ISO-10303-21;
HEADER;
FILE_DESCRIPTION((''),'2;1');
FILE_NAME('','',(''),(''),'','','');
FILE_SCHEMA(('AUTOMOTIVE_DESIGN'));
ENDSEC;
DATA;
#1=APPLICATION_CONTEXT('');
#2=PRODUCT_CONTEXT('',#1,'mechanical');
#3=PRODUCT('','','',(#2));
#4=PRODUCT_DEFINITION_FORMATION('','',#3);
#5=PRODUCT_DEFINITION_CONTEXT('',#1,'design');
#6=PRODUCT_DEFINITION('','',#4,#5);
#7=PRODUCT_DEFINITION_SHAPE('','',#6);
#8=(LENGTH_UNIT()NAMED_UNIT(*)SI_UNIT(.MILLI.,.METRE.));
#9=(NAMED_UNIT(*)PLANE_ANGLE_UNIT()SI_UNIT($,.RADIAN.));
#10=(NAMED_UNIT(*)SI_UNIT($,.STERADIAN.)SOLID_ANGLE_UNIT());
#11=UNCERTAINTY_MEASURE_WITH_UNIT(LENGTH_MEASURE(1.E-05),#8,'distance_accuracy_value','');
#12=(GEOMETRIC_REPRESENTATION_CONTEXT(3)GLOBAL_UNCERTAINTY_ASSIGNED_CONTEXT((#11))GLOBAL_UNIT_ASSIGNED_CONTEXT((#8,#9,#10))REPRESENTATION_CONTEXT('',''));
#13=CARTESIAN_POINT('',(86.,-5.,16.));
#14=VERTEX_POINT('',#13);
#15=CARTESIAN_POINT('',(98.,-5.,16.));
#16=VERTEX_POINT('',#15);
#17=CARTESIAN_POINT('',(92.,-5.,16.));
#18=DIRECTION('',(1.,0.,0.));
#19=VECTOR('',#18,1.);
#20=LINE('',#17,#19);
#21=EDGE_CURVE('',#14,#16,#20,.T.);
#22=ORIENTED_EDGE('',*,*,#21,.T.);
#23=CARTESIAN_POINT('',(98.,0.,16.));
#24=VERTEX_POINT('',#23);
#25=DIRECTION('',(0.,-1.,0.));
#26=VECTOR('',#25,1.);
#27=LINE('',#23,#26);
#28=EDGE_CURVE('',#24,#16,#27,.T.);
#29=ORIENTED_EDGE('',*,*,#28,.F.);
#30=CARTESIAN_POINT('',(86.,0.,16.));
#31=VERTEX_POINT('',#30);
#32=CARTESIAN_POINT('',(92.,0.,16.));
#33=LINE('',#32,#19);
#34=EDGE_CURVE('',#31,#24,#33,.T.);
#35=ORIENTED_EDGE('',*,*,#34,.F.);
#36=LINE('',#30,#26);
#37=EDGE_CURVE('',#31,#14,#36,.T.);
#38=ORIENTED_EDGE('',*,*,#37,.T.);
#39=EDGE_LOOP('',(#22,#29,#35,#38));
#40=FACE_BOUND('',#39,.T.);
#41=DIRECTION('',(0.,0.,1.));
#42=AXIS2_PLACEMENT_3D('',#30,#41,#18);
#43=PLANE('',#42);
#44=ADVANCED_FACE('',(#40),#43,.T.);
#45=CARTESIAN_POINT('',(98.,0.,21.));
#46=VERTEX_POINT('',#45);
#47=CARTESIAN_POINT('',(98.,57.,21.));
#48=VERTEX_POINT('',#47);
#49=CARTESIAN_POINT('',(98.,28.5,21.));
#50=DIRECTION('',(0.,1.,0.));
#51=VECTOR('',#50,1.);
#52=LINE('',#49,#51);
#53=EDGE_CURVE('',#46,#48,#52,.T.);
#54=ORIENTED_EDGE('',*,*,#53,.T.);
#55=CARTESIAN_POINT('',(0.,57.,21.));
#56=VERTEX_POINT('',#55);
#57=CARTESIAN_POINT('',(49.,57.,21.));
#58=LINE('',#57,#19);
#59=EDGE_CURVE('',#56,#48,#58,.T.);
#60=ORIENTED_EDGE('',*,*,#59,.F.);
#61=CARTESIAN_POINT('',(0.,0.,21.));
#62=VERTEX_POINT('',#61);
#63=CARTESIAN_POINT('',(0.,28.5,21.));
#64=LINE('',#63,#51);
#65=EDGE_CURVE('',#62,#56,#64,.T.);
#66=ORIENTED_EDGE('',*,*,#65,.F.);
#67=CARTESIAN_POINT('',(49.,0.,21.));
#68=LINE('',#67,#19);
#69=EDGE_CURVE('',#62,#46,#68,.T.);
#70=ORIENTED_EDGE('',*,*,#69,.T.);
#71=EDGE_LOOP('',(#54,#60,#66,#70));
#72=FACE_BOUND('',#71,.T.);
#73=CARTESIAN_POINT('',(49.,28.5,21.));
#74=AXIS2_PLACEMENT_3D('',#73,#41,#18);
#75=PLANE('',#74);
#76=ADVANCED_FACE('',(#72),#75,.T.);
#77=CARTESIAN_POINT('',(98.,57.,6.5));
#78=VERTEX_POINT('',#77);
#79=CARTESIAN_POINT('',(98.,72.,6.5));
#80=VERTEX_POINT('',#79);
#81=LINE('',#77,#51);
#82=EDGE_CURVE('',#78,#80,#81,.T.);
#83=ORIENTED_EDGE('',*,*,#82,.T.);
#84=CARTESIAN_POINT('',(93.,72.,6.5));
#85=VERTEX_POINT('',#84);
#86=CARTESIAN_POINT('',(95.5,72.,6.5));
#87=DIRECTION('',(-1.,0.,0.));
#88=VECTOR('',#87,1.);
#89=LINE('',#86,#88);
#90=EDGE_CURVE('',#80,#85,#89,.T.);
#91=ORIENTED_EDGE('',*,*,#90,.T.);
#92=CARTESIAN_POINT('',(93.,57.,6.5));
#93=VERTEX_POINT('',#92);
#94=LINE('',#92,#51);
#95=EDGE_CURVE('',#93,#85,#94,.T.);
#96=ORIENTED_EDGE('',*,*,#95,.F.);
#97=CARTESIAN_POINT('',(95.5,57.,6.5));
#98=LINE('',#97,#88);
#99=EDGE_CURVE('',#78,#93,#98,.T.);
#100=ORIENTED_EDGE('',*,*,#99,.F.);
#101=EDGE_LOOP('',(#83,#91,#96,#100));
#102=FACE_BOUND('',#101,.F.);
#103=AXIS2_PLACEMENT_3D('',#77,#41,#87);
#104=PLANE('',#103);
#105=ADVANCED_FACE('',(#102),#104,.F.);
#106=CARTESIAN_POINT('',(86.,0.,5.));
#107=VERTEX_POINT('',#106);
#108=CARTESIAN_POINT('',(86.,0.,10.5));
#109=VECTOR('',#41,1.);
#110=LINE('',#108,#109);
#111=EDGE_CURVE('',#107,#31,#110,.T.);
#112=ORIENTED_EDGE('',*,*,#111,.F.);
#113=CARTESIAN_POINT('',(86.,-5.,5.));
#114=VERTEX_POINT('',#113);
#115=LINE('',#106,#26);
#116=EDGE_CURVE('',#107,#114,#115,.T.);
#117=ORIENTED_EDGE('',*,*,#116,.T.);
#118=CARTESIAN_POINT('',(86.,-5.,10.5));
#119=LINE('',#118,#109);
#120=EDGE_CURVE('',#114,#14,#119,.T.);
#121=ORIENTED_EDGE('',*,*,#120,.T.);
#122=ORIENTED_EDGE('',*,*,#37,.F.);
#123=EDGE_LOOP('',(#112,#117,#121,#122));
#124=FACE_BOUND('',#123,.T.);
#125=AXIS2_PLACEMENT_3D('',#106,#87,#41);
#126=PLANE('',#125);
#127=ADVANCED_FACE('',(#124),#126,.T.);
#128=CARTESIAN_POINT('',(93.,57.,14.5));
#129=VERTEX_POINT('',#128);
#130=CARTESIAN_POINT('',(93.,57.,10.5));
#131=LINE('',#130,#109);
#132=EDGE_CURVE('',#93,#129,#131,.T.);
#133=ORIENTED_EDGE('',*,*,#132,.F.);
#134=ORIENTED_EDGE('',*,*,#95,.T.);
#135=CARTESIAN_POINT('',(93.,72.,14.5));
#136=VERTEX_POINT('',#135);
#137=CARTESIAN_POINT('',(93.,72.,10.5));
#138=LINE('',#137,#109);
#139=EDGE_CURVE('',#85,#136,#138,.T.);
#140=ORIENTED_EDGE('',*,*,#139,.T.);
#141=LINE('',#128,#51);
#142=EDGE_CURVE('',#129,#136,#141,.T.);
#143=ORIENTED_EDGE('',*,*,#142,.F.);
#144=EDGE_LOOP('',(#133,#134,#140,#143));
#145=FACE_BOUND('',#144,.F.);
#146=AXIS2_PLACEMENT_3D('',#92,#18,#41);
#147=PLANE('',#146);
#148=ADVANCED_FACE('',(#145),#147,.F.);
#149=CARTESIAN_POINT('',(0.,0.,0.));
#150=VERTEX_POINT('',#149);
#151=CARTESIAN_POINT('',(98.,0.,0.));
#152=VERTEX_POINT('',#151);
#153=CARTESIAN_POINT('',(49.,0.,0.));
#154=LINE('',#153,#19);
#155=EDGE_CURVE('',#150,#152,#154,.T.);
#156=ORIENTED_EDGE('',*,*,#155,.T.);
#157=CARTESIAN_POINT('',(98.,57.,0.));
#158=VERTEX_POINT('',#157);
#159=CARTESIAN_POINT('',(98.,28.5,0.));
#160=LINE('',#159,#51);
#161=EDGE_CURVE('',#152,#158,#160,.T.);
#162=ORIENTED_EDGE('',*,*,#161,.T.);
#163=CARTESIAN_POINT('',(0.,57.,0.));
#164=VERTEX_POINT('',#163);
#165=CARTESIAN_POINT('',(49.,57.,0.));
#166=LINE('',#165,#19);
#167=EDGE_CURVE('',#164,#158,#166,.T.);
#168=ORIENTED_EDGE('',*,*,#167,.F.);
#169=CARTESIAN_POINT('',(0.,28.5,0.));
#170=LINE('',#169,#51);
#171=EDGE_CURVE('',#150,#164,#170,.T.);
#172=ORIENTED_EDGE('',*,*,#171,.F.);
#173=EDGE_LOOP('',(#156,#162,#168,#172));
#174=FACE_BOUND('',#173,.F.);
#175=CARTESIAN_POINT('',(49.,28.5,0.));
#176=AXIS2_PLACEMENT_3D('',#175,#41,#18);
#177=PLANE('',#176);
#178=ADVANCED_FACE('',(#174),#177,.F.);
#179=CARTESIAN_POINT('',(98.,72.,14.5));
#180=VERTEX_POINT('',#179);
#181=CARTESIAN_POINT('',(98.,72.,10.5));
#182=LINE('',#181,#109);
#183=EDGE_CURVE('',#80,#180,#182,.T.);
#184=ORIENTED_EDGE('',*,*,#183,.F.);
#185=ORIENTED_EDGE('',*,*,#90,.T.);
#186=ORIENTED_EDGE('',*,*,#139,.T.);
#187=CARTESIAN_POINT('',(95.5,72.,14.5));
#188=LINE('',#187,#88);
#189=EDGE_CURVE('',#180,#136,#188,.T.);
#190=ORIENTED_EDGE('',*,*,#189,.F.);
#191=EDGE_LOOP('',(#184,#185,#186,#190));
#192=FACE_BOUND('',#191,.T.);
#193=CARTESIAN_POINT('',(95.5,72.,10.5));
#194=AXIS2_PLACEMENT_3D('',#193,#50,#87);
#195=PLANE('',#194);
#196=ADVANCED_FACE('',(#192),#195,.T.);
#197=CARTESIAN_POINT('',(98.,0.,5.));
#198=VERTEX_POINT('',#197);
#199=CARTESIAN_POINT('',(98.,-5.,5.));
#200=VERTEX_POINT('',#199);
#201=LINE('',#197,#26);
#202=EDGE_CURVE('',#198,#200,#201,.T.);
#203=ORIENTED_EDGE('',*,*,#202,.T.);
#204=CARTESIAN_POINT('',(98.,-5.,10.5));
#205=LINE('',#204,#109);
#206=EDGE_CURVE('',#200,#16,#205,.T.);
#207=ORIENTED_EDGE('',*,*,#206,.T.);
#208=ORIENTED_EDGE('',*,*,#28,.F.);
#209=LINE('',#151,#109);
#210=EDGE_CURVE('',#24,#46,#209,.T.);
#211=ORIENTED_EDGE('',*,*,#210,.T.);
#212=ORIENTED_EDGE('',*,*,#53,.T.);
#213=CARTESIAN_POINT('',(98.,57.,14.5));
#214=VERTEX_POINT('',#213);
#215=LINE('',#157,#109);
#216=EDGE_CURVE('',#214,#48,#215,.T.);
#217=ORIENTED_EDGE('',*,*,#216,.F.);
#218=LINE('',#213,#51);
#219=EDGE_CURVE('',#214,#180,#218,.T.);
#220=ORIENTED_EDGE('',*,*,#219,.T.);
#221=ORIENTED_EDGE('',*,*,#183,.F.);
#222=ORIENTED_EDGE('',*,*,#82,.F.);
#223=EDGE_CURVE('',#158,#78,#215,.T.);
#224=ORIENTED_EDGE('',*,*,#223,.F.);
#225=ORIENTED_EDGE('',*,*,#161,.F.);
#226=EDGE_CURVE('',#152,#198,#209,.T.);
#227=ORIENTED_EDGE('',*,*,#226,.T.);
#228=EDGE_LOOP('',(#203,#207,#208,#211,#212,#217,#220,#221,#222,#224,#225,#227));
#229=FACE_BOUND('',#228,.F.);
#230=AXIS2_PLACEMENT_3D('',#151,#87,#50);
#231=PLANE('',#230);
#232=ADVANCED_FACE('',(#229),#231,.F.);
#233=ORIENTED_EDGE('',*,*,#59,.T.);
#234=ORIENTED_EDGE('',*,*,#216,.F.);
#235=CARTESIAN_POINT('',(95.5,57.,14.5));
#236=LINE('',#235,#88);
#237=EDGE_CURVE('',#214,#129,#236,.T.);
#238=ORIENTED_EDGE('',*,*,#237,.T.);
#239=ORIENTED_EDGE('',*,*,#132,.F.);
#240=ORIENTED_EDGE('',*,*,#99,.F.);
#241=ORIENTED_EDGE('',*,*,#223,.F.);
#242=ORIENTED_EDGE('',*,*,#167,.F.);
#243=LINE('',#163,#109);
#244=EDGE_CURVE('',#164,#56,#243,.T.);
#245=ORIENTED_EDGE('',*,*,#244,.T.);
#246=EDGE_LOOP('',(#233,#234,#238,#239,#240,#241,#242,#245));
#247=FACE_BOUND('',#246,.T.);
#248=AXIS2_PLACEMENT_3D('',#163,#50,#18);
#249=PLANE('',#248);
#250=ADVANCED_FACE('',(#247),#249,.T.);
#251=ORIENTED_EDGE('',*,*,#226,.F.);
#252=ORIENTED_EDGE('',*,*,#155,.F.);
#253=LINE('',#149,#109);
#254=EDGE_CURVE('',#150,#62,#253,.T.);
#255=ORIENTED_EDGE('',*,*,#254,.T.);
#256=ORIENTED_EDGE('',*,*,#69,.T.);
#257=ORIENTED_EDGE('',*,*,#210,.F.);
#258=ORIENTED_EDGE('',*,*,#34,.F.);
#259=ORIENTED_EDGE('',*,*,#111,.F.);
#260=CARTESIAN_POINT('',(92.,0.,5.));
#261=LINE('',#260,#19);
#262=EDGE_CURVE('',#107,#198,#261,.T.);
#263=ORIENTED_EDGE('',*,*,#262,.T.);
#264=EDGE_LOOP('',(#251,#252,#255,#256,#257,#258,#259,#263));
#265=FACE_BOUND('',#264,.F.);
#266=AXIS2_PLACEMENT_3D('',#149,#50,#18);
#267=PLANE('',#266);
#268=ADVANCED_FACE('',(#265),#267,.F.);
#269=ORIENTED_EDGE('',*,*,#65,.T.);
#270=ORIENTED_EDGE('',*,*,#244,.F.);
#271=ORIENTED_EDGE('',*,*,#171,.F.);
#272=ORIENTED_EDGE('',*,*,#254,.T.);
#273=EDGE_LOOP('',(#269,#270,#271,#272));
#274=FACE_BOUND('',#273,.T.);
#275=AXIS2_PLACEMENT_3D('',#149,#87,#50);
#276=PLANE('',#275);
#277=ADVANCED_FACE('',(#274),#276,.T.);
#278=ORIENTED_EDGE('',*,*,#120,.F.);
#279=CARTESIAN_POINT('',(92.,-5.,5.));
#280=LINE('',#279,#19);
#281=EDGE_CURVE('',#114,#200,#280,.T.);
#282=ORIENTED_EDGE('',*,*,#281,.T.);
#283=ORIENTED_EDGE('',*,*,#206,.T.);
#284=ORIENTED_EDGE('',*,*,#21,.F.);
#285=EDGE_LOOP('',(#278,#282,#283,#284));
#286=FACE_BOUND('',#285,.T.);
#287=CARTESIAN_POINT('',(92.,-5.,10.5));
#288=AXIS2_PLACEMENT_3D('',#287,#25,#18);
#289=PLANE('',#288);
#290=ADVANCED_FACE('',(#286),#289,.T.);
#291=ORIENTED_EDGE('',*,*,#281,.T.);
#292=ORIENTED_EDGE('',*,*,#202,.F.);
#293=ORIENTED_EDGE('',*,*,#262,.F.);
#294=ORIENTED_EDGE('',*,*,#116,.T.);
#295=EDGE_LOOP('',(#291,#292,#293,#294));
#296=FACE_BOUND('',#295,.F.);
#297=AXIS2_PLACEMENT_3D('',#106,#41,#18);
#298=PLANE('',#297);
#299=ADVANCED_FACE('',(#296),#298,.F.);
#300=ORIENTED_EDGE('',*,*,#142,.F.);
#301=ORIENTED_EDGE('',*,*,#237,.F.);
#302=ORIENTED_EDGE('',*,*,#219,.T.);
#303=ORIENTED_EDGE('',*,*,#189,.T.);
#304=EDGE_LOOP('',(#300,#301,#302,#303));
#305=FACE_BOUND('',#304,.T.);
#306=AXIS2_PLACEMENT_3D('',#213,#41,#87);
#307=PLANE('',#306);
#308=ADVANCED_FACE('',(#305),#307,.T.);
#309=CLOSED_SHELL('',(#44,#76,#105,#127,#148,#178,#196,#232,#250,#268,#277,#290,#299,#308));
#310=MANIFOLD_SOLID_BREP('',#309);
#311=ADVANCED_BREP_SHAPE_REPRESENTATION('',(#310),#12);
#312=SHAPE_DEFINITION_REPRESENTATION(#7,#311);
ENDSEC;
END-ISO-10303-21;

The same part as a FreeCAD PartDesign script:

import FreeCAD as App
import Part
import Sketcher


def add_polygon(sketch, points):
    """Adds a closed chain of lines whose ends are joined by coincident constraints."""
    first, n = sketch.GeometryCount, len(points)
    for a, b in zip(points, points[1:] + points[:1]):
        sketch.addGeometry(Part.LineSegment(App.Vector(*a, 0), App.Vector(*b, 0)), False)
    for i in range(n):
        sketch.addConstraint(Sketcher.Constraint("Coincident", first + i, 2, first + (i + 1) % n, 1))

doc = App.newDocument("Part")
body = doc.addObject("PartDesign::Body", "Body")

sketch1 = doc.addObject("Sketcher::SketchObject", "Sketch")
body.addObject(sketch1)
sketch1.AttachmentSupport = (doc.XY_Plane, [""])
sketch1.MapMode = "FlatFace"
add_polygon(sketch1, [(0, 57), (0, 0), (98, 0), (98, 57)])
sketch1.addConstraint(Sketcher.Constraint("Vertical", 0))
sketch1.addConstraint(Sketcher.Constraint("Horizontal", 1))
sketch1.addConstraint(Sketcher.Constraint("Vertical", 2))
sketch1.addConstraint(Sketcher.Constraint("Horizontal", 3))
sketch1.addConstraint(Sketcher.Constraint("Coincident", 0, 2, -1, 1))
sketch1.addConstraint(Sketcher.Constraint("DistanceX", 1, 1, 1, 2, 98.0))
sketch1.addConstraint(Sketcher.Constraint("DistanceY", 0, 2, 0, 1, 57.0))
pad1 = doc.addObject("PartDesign::Pad", "Pad")
body.addObject(pad1)
pad1.Profile = sketch1
pad1.Length = 21

sketch2 = doc.addObject("Sketcher::SketchObject", "Sketch001")
body.addObject(sketch2)
sketch2.AttachmentSupport = (doc.XZ_Plane, [""])
sketch2.MapMode = "FlatFace"
sketch2.AttachmentOffset = App.Placement(App.Vector(0, 0, -57), App.Rotation())
add_polygon(sketch2, [(98, 14), (98, 6), (93, 6), (93, 14)])
sketch2.addConstraint(Sketcher.Constraint("Vertical", 0))
sketch2.addConstraint(Sketcher.Constraint("Horizontal", 1))
sketch2.addConstraint(Sketcher.Constraint("Vertical", 2))
sketch2.addConstraint(Sketcher.Constraint("Horizontal", 3))
sketch2.addConstraint(Sketcher.Constraint("DistanceX", 1, 2, 1, 1, 5.0))
sketch2.addConstraint(Sketcher.Constraint("DistanceY", 0, 2, 0, 1, 8.0))
sketch2.addConstraint(Sketcher.Constraint("DistanceX", -1, 1, 0, 2, 98.0))
sketch2.addConstraint(Sketcher.Constraint("DistanceY", -1, 1, 0, 2, 6.5))
pad2 = doc.addObject("PartDesign::Pad", "Pad001")
body.addObject(pad2)
pad2.Profile = sketch2
pad2.Length = 15
pad2.Reversed = True

sketch3 = doc.addObject("Sketcher::SketchObject", "Sketch002")
body.addObject(sketch3)
sketch3.AttachmentSupport = (doc.XZ_Plane, [""])
sketch3.MapMode = "FlatFace"
add_polygon(sketch3, [(86, 16), (86, 5), (98, 5), (98, 16)])
sketch3.addConstraint(Sketcher.Constraint("Vertical", 0))
sketch3.addConstraint(Sketcher.Constraint("Horizontal", 1))
sketch3.addConstraint(Sketcher.Constraint("Vertical", 2))
sketch3.addConstraint(Sketcher.Constraint("Horizontal", 3))
sketch3.addConstraint(Sketcher.Constraint("DistanceX", 1, 1, 1, 2, 12.0))
sketch3.addConstraint(Sketcher.Constraint("DistanceY", 0, 2, 0, 1, 11.0))
sketch3.addConstraint(Sketcher.Constraint("DistanceX", -1, 1, 0, 2, 86.0))
sketch3.addConstraint(Sketcher.Constraint("DistanceY", -1, 1, 0, 2, 5.0))
pad3 = doc.addObject("PartDesign::Pad", "Pad002")
body.addObject(pad3)
pad3.Profile = sketch3
pad3.Length = 5

doc.recompute()
